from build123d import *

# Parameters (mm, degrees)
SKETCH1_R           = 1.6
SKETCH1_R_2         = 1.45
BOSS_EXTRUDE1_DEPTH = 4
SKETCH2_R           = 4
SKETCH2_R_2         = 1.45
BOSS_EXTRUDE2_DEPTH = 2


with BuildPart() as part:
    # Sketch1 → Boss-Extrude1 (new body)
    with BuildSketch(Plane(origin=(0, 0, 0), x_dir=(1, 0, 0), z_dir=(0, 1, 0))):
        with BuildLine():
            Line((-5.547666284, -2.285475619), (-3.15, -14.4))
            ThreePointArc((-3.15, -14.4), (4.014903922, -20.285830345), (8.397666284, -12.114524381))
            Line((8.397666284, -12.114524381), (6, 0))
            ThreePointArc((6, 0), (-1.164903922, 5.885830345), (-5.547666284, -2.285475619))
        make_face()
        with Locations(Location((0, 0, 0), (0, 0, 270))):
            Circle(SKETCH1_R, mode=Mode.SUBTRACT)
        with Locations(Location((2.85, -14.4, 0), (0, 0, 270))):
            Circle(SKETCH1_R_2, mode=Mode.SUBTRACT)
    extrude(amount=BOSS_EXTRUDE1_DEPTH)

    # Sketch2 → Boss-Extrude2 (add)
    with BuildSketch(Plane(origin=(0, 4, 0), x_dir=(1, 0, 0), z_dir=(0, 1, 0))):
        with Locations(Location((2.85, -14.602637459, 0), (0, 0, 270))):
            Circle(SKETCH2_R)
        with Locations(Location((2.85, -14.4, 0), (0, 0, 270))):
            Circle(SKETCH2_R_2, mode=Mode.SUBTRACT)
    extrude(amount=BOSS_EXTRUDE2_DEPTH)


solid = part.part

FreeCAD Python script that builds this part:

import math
import FreeCAD as App
import Part
import Sketcher
from FreeCAD import Vector
Q = App.Units.Quantity

doc = App.newDocument("Part")
body = doc.addObject("PartDesign::Body", "Body")

# Sketch on XZ plane
sketch1 = doc.addObject("Sketcher::SketchObject", "Sketch")
body.addObject(sketch1)
sketch1.AttachmentSupport = (doc.XZ_Plane, [""])
sketch1.MapMode = "FlatFace"
sketch1.addGeometry([
    Part.LineSegment(Vector(-5.5, 2.3, 0), Vector(-3.1, 14.4, 0)),  # 0
    Part.ArcOfCircle(Part.Circle(Vector(2.9, 14.4, 0), Vector(0, 0, 1), 6), math.radians(-22), math.radians(180)),  # 1
    Part.LineSegment(Vector(8.4, 12.1, 0), Vector(6, 0, 0)),  # 2
    Part.ArcOfCircle(Part.Circle(Vector(0, 0, 0), Vector(0, 0, 1), 6), math.radians(158), math.radians(360)),  # 3
    Part.Circle(Vector(2.9, 14.4, 0), Vector(0, 0, 1), 1.4),  # 4
    Part.Circle(Vector(0, 0, 0), Vector(0, 0, 1), 1.6),  # 5
], False)
sketch1.addConstraint([
    Sketcher.Constraint("Coincident", 0, 2, 1, 2),
    Sketcher.Constraint("Coincident", 1, 1, 2, 1),
    Sketcher.Constraint("Coincident", 2, 2, 3, 2),
    Sketcher.Constraint("Coincident", 3, 1, 0, 1),
    Sketcher.Constraint("Coincident", 3, 3, -1, 1),
    Sketcher.Constraint("Coincident", 5, 3, -1, 1),
    Sketcher.Constraint("Coincident", 4, 3, 1, 3),
    Sketcher.Constraint("Equal", 1, 3),
    Sketcher.Constraint("PointOnObject", 2, 2, -1),
    Sketcher.Constraint("Parallel", 0, 2),
    Sketcher.Constraint("Horizontal", 4, 3, 0, 2),
    Sketcher.Constraint("Radius", 1, Q("6 mm")),
    Sketcher.Constraint("Diameter", 4, Q("2.9 mm")),
    Sketcher.Constraint("Diameter", 5, Q("3.2 mm")),
    Sketcher.Constraint("DistanceY", -1, 1, 1, 3, Q("14.4 mm")),
    Sketcher.Constraint("DistanceX", -1, 1, 1, 3, Q("2.85 mm")),
    Sketcher.Constraint("Distance", 0, Q("12.349514 mm")),
])
pad1 = doc.addObject("PartDesign::Pad", "Pad")
body.addObject(pad1)
pad1.Profile = sketch1
pad1.Length = 4
pad1.Reversed = True

# Sketch on XZ plane
sketch2 = doc.addObject("Sketcher::SketchObject", "Sketch001")
body.addObject(sketch2)
sketch2.AttachmentSupport = (doc.XZ_Plane, [""])
sketch2.MapMode = "FlatFace"
sketch2.AttachmentOffset = App.Placement(Vector(0, 0, -4), App.Rotation())
sketch2.addGeometry([
    Part.Circle(Vector(2.9, 14.6, 0), Vector(0, 0, 1), 4),
    Part.Circle(Vector(2.9, 14.4, 0), Vector(0, 0, 1), 1.4),
], False)
sketch2.addConstraint([
    Sketcher.Constraint("Vertical", 0, 3, 1, 3),
    Sketcher.Constraint("Diameter", 0, Q("8 mm")),
    Sketcher.Constraint("Diameter", 1, Q("2.9 mm")),
    Sketcher.Constraint("DistanceY", -1, 1, 1, 3, Q("14.4 mm")),
    Sketcher.Constraint("DistanceX", -1, 1, 0, 3, Q("2.85 mm")),
    Sketcher.Constraint("DistanceY", -1, 1, 0, 3, Q("14.602637 mm")),
])
pad2 = doc.addObject("PartDesign::Pad", "Pad001")
body.addObject(pad2)
pad2.Profile = sketch2
pad2.Length = 2
pad2.Reversed = True

doc.recompute()
